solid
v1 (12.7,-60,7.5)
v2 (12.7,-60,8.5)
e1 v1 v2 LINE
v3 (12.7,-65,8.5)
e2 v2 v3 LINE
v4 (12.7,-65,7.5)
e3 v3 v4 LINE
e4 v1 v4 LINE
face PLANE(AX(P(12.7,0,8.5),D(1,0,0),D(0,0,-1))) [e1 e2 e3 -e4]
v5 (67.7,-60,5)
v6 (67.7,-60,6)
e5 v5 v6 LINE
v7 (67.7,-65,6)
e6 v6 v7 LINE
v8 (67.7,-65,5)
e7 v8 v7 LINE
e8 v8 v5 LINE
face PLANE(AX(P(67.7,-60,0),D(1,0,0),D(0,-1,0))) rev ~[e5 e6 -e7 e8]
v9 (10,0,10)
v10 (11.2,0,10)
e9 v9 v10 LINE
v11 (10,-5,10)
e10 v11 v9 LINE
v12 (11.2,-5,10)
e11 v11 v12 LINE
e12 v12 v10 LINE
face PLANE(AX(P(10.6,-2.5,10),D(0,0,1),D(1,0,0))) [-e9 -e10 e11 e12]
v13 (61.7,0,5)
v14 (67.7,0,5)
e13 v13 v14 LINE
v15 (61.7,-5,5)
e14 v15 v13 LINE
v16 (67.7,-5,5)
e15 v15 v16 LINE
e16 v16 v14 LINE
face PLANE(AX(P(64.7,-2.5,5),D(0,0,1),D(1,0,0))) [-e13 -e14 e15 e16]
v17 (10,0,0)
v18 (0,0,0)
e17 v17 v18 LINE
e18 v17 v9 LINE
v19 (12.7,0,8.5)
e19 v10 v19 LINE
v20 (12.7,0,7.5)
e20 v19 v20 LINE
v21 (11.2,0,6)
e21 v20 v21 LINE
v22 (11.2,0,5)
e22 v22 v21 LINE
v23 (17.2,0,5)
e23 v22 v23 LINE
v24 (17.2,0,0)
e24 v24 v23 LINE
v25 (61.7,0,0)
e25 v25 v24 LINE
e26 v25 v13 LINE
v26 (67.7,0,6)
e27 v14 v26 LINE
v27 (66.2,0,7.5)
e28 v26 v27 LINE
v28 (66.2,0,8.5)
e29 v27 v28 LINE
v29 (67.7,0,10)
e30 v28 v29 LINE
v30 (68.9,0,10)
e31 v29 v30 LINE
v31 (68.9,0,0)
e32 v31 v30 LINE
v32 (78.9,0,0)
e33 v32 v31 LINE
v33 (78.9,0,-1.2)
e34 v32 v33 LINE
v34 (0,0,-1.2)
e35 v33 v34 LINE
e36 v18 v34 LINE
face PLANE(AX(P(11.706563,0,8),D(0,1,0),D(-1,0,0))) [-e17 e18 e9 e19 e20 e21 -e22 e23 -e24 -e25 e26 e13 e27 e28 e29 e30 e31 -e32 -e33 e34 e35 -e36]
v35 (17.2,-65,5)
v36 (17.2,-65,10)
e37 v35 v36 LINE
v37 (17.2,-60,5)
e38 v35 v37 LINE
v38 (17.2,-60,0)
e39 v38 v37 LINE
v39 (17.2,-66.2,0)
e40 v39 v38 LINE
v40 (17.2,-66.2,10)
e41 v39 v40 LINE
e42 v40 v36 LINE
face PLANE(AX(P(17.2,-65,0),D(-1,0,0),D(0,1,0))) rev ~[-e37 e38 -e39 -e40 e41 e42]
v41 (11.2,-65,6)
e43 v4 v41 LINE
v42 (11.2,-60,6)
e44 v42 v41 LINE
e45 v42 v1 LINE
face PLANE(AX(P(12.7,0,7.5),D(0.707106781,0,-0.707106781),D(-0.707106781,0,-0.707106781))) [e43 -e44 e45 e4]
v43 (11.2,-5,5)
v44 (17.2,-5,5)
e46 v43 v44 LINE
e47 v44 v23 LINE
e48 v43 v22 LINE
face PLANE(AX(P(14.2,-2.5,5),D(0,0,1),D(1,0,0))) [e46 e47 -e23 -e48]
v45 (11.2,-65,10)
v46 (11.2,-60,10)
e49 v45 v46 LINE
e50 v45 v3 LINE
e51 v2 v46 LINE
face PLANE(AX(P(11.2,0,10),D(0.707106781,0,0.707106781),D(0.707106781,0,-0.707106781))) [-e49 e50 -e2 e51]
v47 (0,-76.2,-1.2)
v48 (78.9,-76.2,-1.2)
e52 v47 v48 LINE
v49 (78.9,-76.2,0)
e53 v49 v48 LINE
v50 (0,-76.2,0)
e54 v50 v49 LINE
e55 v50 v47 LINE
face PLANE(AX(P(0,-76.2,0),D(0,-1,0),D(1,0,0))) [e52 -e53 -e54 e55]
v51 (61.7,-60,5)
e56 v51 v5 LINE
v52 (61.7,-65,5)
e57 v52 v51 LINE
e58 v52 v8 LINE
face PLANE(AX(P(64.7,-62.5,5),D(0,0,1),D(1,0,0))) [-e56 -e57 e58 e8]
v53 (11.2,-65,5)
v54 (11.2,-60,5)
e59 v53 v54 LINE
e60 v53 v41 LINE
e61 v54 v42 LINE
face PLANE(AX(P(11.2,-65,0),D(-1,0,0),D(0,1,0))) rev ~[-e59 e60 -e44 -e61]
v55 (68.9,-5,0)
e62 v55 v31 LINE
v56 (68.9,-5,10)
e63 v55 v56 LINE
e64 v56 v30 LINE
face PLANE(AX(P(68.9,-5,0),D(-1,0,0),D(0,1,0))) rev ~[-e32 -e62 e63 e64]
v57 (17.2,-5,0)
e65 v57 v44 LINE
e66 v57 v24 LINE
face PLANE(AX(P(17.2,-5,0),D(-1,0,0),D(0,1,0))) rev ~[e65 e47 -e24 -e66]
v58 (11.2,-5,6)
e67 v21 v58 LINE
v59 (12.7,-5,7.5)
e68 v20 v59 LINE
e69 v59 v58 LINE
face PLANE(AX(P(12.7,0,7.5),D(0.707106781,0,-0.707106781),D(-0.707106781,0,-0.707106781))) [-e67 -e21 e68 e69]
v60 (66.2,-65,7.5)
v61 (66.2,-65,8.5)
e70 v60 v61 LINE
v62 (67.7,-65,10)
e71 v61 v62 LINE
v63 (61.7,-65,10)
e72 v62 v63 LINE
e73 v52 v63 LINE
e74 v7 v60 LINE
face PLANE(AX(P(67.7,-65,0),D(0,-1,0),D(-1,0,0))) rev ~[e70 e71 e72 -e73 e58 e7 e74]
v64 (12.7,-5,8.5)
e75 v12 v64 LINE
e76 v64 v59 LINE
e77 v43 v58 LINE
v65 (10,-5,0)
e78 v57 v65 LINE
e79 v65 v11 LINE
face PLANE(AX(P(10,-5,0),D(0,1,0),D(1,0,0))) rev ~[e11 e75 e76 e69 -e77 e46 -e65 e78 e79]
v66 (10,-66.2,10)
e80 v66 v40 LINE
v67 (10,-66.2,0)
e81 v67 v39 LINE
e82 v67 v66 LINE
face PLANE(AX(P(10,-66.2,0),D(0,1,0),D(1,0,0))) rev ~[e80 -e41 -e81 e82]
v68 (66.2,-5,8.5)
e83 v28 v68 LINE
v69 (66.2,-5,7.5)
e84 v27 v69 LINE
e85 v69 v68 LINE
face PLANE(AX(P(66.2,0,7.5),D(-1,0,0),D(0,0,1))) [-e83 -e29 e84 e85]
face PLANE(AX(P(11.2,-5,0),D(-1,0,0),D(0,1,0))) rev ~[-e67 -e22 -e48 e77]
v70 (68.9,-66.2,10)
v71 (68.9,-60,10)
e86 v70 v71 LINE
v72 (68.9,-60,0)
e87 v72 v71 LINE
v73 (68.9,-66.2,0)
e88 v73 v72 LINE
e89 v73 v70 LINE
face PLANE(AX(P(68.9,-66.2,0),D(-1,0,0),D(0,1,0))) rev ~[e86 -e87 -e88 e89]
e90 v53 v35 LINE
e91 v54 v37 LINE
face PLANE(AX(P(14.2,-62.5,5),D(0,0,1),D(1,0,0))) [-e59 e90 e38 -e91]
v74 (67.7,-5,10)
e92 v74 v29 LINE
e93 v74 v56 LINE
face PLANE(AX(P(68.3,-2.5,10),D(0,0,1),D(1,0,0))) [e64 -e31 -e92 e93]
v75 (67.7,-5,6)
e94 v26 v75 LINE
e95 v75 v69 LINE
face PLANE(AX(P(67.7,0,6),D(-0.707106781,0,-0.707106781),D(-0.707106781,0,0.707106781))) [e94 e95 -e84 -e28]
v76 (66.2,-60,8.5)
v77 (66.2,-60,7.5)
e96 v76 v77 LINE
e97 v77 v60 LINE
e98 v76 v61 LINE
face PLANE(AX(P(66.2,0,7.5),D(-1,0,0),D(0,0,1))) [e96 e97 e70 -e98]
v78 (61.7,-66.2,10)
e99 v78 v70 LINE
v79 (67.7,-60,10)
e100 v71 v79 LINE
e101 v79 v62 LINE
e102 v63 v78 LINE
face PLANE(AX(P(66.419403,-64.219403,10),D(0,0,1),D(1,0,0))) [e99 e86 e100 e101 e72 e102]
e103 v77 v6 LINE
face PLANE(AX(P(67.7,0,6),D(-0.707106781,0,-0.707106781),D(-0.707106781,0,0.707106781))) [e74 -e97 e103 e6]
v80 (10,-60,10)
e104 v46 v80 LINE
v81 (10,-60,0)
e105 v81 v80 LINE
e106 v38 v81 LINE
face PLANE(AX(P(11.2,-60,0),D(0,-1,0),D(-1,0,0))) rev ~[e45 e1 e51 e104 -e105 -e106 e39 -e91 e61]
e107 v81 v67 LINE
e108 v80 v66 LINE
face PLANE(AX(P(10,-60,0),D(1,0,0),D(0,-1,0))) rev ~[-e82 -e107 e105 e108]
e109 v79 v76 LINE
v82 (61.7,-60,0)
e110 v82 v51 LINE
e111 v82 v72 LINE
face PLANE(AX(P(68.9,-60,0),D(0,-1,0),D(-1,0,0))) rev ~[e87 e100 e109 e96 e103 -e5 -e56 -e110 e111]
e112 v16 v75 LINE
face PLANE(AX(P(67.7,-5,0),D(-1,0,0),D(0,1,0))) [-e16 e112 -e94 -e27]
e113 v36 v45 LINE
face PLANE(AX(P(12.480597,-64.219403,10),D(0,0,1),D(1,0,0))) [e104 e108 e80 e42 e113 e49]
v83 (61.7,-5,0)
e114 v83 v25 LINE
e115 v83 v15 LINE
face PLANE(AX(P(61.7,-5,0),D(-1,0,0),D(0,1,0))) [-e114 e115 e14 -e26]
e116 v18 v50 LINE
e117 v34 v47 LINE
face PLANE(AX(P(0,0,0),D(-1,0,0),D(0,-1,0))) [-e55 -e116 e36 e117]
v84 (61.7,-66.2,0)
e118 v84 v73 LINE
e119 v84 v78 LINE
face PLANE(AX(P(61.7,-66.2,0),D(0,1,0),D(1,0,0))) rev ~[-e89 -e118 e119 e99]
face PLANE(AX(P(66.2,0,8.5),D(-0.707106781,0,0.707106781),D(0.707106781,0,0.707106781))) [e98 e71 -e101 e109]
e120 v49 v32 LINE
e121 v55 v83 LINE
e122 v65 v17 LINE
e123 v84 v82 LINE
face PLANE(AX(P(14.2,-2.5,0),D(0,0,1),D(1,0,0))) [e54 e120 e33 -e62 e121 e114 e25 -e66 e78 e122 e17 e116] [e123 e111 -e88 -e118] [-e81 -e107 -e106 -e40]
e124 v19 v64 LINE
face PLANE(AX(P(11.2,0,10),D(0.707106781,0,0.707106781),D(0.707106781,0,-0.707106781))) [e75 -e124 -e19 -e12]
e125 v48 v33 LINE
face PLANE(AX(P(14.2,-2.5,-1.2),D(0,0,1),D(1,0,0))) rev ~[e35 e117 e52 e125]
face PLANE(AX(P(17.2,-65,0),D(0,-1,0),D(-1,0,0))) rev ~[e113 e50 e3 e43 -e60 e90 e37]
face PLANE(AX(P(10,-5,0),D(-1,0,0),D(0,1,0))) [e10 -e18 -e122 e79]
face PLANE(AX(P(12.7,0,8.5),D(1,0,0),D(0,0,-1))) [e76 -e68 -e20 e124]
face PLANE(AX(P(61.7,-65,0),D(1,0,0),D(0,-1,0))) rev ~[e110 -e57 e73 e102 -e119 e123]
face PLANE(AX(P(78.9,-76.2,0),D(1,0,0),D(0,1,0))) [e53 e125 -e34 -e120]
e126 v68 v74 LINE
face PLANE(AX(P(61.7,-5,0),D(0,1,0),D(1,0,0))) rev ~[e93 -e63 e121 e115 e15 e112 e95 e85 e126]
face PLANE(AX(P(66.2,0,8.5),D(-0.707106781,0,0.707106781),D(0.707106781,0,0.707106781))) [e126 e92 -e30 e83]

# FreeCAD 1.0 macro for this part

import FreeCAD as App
import Part
import Sketcher
from FreeCAD import Vector

doc = App.newDocument("Part")
body = doc.addObject("PartDesign::Body", "Body")

sketch1 = body.newObject("Sketcher::SketchObject", "Sketch")
sketch1.AttachmentSupport = (doc.getObject("XY_Plane"), [""])
sketch1.MapMode = "FlatFace"
sketch1.addGeometry([
    Part.LineSegment(Vector(0, 0, 0), Vector(0, -76, 0)),
    Part.LineSegment(Vector(0, -76, 0), Vector(79, -76, 0)),
    Part.LineSegment(Vector(79, -76, 0), Vector(79, 0, 0)),
    Part.LineSegment(Vector(79, 0, 0), Vector(0, 0, 0)),
], False)
sketch1.addConstraint([
    Sketcher.Constraint("Coincident", 0, 2, 1, 1),
    Sketcher.Constraint("Coincident", 1, 2, 2, 1),
    Sketcher.Constraint("Coincident", 2, 2, 3, 1),
    Sketcher.Constraint("Coincident", 3, 2, 0, 1),
    Sketcher.Constraint("Vertical", 0),
    Sketcher.Constraint("Horizontal", 1),
    Sketcher.Constraint("Vertical", 2),
    Sketcher.Constraint("Horizontal", 3),
    Sketcher.Constraint("Coincident", 3, 2, -1, 1),
    Sketcher.Constraint("DistanceX", 1, 1, 1, 2, 78.9),
    Sketcher.Constraint("DistanceY", 0, 2, 0, 1, 76.2),
])
pad1 = body.newObject("PartDesign::Pad", "Pad")
pad1.Profile = sketch1
pad1.Length = 1.2
pad1.Reversed = True

sketch2 = body.newObject("Sketcher::SketchObject", "Sketch001")
sketch2.AttachmentSupport = (doc.getObject("XY_Plane"), [""])
sketch2.MapMode = "FlatFace"
sketch2.addGeometry([
    Part.LineSegment(Vector(11, 0, 0), Vector(11, -5, 0)),
    Part.LineSegment(Vector(11, -5, 0), Vector(17, -5, 0)),
    Part.LineSegment(Vector(17, -5, 0), Vector(17, 0, 0)),
    Part.LineSegment(Vector(17, 0, 0), Vector(11, 0, 0)),
    Part.LineSegment(Vector(11, -60, 0), Vector(11, -65, 0)),
    Part.LineSegment(Vector(11, -65, 0), Vector(17, -65, 0)),
    Part.LineSegment(Vector(17, -65, 0), Vector(17, -60, 0)),
    Part.LineSegment(Vector(17, -60, 0), Vector(11, -60, 0)),
    Part.LineSegment(Vector(62, 0, 0), Vector(62, -5, 0)),
    Part.LineSegment(Vector(62, -5, 0), Vector(68, -5, 0)),
    Part.LineSegment(Vector(68, -5, 0), Vector(68, 0, 0)),
    Part.LineSegment(Vector(68, 0, 0), Vector(62, 0, 0)),
    Part.LineSegment(Vector(62, -60, 0), Vector(62, -65, 0)),
    Part.LineSegment(Vector(62, -65, 0), Vector(68, -65, 0)),
    Part.LineSegment(Vector(68, -65, 0), Vector(68, -60, 0)),
    Part.LineSegment(Vector(68, -60, 0), Vector(62, -60, 0)),
], False)
sketch2.addConstraint([
    Sketcher.Constraint("Coincident", 0, 2, 1, 1),
    Sketcher.Constraint("Coincident", 1, 2, 2, 1),
    Sketcher.Constraint("Coincident", 2, 2, 3, 1),
    Sketcher.Constraint("Coincident", 3, 2, 0, 1),
    Sketcher.Constraint("Coincident", 4, 2, 5, 1),
    Sketcher.Constraint("Coincident", 5, 2, 6, 1),
    Sketcher.Constraint("Coincident", 6, 2, 7, 1),
    Sketcher.Constraint("Coincident", 7, 2, 4, 1),
    Sketcher.Constraint("Coincident", 8, 2, 9, 1),
    Sketcher.Constraint("Coincident", 9, 2, 10, 1),
    Sketcher.Constraint("Coincident", 10, 2, 11, 1),
    Sketcher.Constraint("Coincident", 11, 2, 8, 1),
    Sketcher.Constraint("Coincident", 12, 2, 13, 1),
    Sketcher.Constraint("Coincident", 13, 2, 14, 1),
    Sketcher.Constraint("Coincident", 14, 2, 15, 1),
    Sketcher.Constraint("Coincident", 15, 2, 12, 1),
    Sketcher.Constraint("Vertical", 0),
    Sketcher.Constraint("Horizontal", 1),
    Sketcher.Constraint("Vertical", 2),
    Sketcher.Constraint("Horizontal", 3),
    Sketcher.Constraint("Vertical", 4),
    Sketcher.Constraint("Horizontal", 5),
    Sketcher.Constraint("Vertical", 6),
    Sketcher.Constraint("Horizontal", 7),
    Sketcher.Constraint("Vertical", 8),
    Sketcher.Constraint("Horizontal", 9),
    Sketcher.Constraint("Vertical", 10),
    Sketcher.Constraint("Horizontal", 11),
    Sketcher.Constraint("Vertical", 12),
    Sketcher.Constraint("Horizontal", 13),
    Sketcher.Constraint("Vertical", 14),
    Sketcher.Constraint("Horizontal", 15),
    Sketcher.Constraint("PointOnObject", 2, 2, -1),
    Sketcher.Constraint("PointOnObject", 10, 2, -1),
    Sketcher.Constraint("Horizontal", 1, 2, 8, 2),
    Sketcher.Constraint("Horizontal", 5, 2, 12, 2),
    Sketcher.Constraint("Horizontal", 7, 2, 14, 2),
    Sketcher.Constraint("Vertical", 3, 2, 4, 2),
    Sketcher.Constraint("Vertical", 2, 2, 5, 2),
    Sketcher.Constraint("Vertical", 11, 2, 12, 2),
    Sketcher.Constraint("Vertical", 10, 2, 13, 2),
    Sketcher.Constraint("Equal", 7, 9),
    Sketcher.Constraint("Equal", 2, 4),
    Sketcher.Constraint("DistanceX", 1, 1, 1, 2, 6.0),
    Sketcher.Constraint("DistanceY", 0, 2, 0, 1, 5.0),
    Sketcher.Constraint("DistanceY", 4, 2, -1, 1, 65.0),
    Sketcher.Constraint("DistanceX", -1, 1, 0, 2, 11.2),
    Sketcher.Constraint("DistanceX", -1, 1, 8, 2, 61.7),
])
pad2 = body.newObject("PartDesign::Pad", "Pad001")
pad2.Profile = sketch2
pad2.Length = 5

sketch3 = body.newObject("Sketcher::SketchObject", "Sketch002")
sketch3.AttachmentSupport = (doc.getObject("XY_Plane"), [""])
sketch3.MapMode = "FlatFace"
sketch3.addGeometry([
    Part.LineSegment(Vector(11.2, -65, 0), Vector(11.2, -60, 0)),
    Part.LineSegment(Vector(11.2, -60, 0), Vector(10, -60, 0)),
    Part.LineSegment(Vector(10, -60, 0), Vector(10, -66.2, 0)),
    Part.LineSegment(Vector(10, -66.2, 0), Vector(17.2, -66.2, 0)),
    Part.LineSegment(Vector(17.2, -66.2, 0), Vector(17.2, -65, 0)),
    Part.LineSegment(Vector(17.2, -65, 0), Vector(11.2, -65, 0)),
    Part.LineSegment(Vector(68.9, -60, 0), Vector(67.7, -60, 0)),
    Part.LineSegment(Vector(67.7, -60, 0), Vector(67.7, -65, 0)),
    Part.LineSegment(Vector(67.7, -65, 0), Vector(61.7, -65, 0)),
    Part.LineSegment(Vector(61.7, -65, 0), Vector(61.7, -66.2, 0)),
    Part.LineSegment(Vector(61.7, -66.2, 0), Vector(68.9, -66.2, 0)),
    Part.LineSegment(Vector(68.9, -66.2, 0), Vector(68.9, -60, 0)),
    Part.LineSegment(Vector(67.7, 0, 0), Vector(67.7, -5, 0)),
    Part.LineSegment(Vector(67.7, -5, 0), Vector(68.9, -5, 0)),
    Part.LineSegment(Vector(68.9, -5, 0), Vector(68.9, 0, 0)),
    Part.LineSegment(Vector(68.9, 0, 0), Vector(67.7, 0, 0)),
    Part.LineSegment(Vector(10, 0, 0), Vector(10, -5, 0)),
    Part.LineSegment(Vector(10, -5, 0), Vector(11.2, -5, 0)),
    Part.LineSegment(Vector(11.2, -5, 0), Vector(11.2, 0, 0)),
    Part.LineSegment(Vector(11.2, 0, 0), Vector(10, 0, 0)),
], False)
sketch3.addConstraint([
    Sketcher.Constraint("Coincident", 0, 2, 1, 1),
    Sketcher.Constraint("Coincident", 1, 2, 2, 1),
    Sketcher.Constraint("Coincident", 2, 2, 3, 1),
    Sketcher.Constraint("Coincident", 3, 2, 4, 1),
    Sketcher.Constraint("Coincident", 4, 2, 5, 1),
    Sketcher.Constraint("Coincident", 5, 2, 0, 1),
    Sketcher.Constraint("Coincident", 6, 2, 7, 1),
    Sketcher.Constraint("Coincident", 7, 2, 8, 1),
    Sketcher.Constraint("Coincident", 8, 2, 9, 1),
    Sketcher.Constraint("Coincident", 9, 2, 10, 1),
    Sketcher.Constraint("Coincident", 10, 2, 11, 1),
    Sketcher.Constraint("Coincident", 11, 2, 6, 1),
    Sketcher.Constraint("Coincident", 12, 2, 13, 1),
    Sketcher.Constraint("Coincident", 13, 2, 14, 1),
    Sketcher.Constraint("Coincident", 14, 2, 15, 1),
    Sketcher.Constraint("Coincident", 15, 2, 12, 1),
    Sketcher.Constraint("Coincident", 16, 2, 17, 1),
    Sketcher.Constraint("Coincident", 17, 2, 18, 1),
    Sketcher.Constraint("Coincident", 18, 2, 19, 1),
    Sketcher.Constraint("Coincident", 19, 2, 16, 1),
    Sketcher.Constraint("Vertical", 0),
    Sketcher.Constraint("Horizontal", 1),
    Sketcher.Constraint("Vertical", 2),
    Sketcher.Constraint("Horizontal", 3),
    Sketcher.Constraint("Vertical", 4),
    Sketcher.Constraint("Horizontal", 5),
    Sketcher.Constraint("Horizontal", 6),
    Sketcher.Constraint("Vertical", 7),
    Sketcher.Constraint("Horizontal", 8),
    Sketcher.Constraint("Vertical", 9),
    Sketcher.Constraint("Horizontal", 10),
    Sketcher.Constraint("Vertical", 11),
    Sketcher.Constraint("Vertical", 12),
    Sketcher.Constraint("Horizontal", 13),
    Sketcher.Constraint("Vertical", 14),
    Sketcher.Constraint("Horizontal", 15),
    Sketcher.Constraint("Vertical", 16),
    Sketcher.Constraint("Horizontal", 17),
    Sketcher.Constraint("Vertical", 18),
    Sketcher.Constraint("Horizontal", 19),
    Sketcher.Constraint("PointOnObject", 14, 2, -1),
    Sketcher.Constraint("PointOnObject", 18, 2, -1),
    Sketcher.Constraint("Horizontal", 1, 2, 6, 2),
    Sketcher.Constraint("Horizontal", 5, 2, 7, 2),
    Sketcher.Constraint("Horizontal", 3, 2, 9, 2),
    Sketcher.Constraint("Horizontal", 13, 2, 16, 2),
    Sketcher.Constraint("Vertical", 7, 2, 12, 2),
    Sketcher.Constraint("Vertical", 11, 2, 13, 2),
    Sketcher.Constraint("Vertical", 2, 2, 16, 2),
    Sketcher.Constraint("Vertical", 5, 2, 17, 2),
    Sketcher.Constraint("Equal", 1, 6),
    Sketcher.Constraint("Equal", 5, 8),
    Sketcher.Constraint("Equal", 19, 4),
    Sketcher.Constraint("Equal", 7, 12),
    Sketcher.Constraint("DistanceX", 5, 2, 5, 1, 6.0),
    Sketcher.Constraint("DistanceY", 0, 1, 0, 2, 5.0),
    Sketcher.Constraint("DistanceX", 1, 2, 1, 1, 1.2),
    Sketcher.Constraint("DistanceY", 0, 2, -1, 1, 60.0),
    Sketcher.Constraint("DistanceX", -1, 1, 1, 2, 10.0),
    Sketcher.Constraint("DistanceX", -1, 1, 6, 2, 67.7),
])
pad3 = body.newObject("PartDesign::Pad", "Pad002")
pad3.Profile = sketch3
pad3.Length = 10

sketch4 = body.newObject("Sketcher::SketchObject", "Sketch003")
sketch4.AttachmentSupport = (doc.getObject("XZ_Plane"), [""])
sketch4.MapMode = "FlatFace"
sketch4.addGeometry([
    Part.LineSegment(Vector(11.2, 6, 0), Vector(11.2, 10, 0)),
    Part.LineSegment(Vector(11.2, 10, 0), Vector(12.7, 8.5, 0)),
    Part.LineSegment(Vector(12.7, 8.5, 0), Vector(12.7, 7.5, 0)),
    Part.LineSegment(Vector(12.7, 7.5, 0), Vector(11.2, 6, 0)),
    Part.LineSegment(Vector(66.2, 7.5, 0), Vector(66.2, 8.5, 0)),
    Part.LineSegment(Vector(66.2, 8.5, 0), Vector(67.7, 10, 0)),
    Part.LineSegment(Vector(67.7, 10, 0), Vector(67.7, 6, 0)),
    Part.LineSegment(Vector(67.7, 6, 0), Vector(66.2, 7.5, 0)),
], False)
sketch4.addConstraint([
    Sketcher.Constraint("Coincident", 0, 2, 1, 1),
    Sketcher.Constraint("Coincident", 1, 2, 2, 1),
    Sketcher.Constraint("Coincident", 2, 2, 3, 1),
    Sketcher.Constraint("Coincident", 3, 2, 0, 1),
    Sketcher.Constraint("Coincident", 4, 2, 5, 1),
    Sketcher.Constraint("Coincident", 5, 2, 6, 1),
    Sketcher.Constraint("Coincident", 6, 2, 7, 1),
    Sketcher.Constraint("Coincident", 7, 2, 4, 1),
    Sketcher.Constraint("Vertical", 0),
    Sketcher.Constraint("Vertical", 2),
    Sketcher.Constraint("Vertical", 4),
    Sketcher.Constraint("Vertical", 6),
    Sketcher.Constraint("Perpendicular", 1, 3),
    Sketcher.Constraint("Parallel", 3, 5),
    Sketcher.Constraint("Perpendicular", 5, 7),
    Sketcher.Constraint("Horizontal", 1, 2, 4, 2),
    Sketcher.Constraint("Horizontal", 0, 2, 5, 2),
    Sketcher.Constraint("Horizontal", 3, 2, 6, 2),
    Sketcher.Constraint("Horizontal", 2, 2, 7, 2),
    Sketcher.Constraint("DistanceY", 0, 1, 0, 2, 4.0),
    Sketcher.Constraint("DistanceY", 2, 2, 2, 1, 1.0),
    Sketcher.Constraint("DistanceY", -1, 1, 0, 2, 10.0),
    Sketcher.Constraint("DistanceX", 0, 2, 4, 2, 55.0),
    Sketcher.Constraint("DistanceX", -1, 1, 0, 2, 11.2),
])
pad4 = body.newObject("PartDesign::Pad", "Pad003")
pad4.Profile = sketch4
pad4.Length = 65

sketch5 = body.newObject("Sketcher::SketchObject", "Sketch004")
sketch5.AttachmentSupport = (doc.getObject("XY_Plane"), [""])
sketch5.MapMode = "FlatFace"
sketch5.addGeometry([
    Part.LineSegment(Vector(10, 0, 0), Vector(0, 0, 0)),
    Part.LineSegment(Vector(0, 0, 0), Vector(0, -76, 0)),
    Part.LineSegment(Vector(0, -76, 0), Vector(79, -76, 0)),
    Part.LineSegment(Vector(79, -76, 0), Vector(79, 0, 0)),
    Part.LineSegment(Vector(79, 0, 0), Vector(69, 0, 0)),
    Part.LineSegment(Vector(69, 0, 0), Vector(69, -5, 0)),
    Part.LineSegment(Vector(69, -5, 0), Vector(62, -5, 0)),
    Part.LineSegment(Vector(62, -5, 0), Vector(62, 0, 0)),
    Part.LineSegment(Vector(62, 0, 0), Vector(17, 0, 0)),
    Part.LineSegment(Vector(17, 0, 0), Vector(17, -5, 0)),
    Part.LineSegment(Vector(17, -5, 0), Vector(10, -5, 0)),
    Part.LineSegment(Vector(10, -5, 0), Vector(10, 0, 0)),
    Part.LineSegment(Vector(10, -66, 0), Vector(10, -60, 0)),
    Part.LineSegment(Vector(10, -60, 0), Vector(17, -60, 0)),
    Part.LineSegment(Vector(17, -60, 0), Vector(17, -66, 0)),
    Part.LineSegment(Vector(17, -66, 0), Vector(10, -66, 0)),
    Part.LineSegment(Vector(62, -66, 0), Vector(62, -60, 0)),
    Part.LineSegment(Vector(62, -60, 0), Vector(69, -60, 0)),
    Part.LineSegment(Vector(69, -60, 0), Vector(69, -66, 0)),
    Part.LineSegment(Vector(69, -66, 0), Vector(62, -66, 0)),
], False)
sketch5.addConstraint([
    Sketcher.Constraint("Coincident", 0, 2, 1, 1),
    Sketcher.Constraint("Coincident", 1, 2, 2, 1),
    Sketcher.Constraint("Coincident", 2, 2, 3, 1),
    Sketcher.Constraint("Coincident", 3, 2, 4, 1),
    Sketcher.Constraint("Coincident", 4, 2, 5, 1),
    Sketcher.Constraint("Coincident", 5, 2, 6, 1),
    Sketcher.Constraint("Coincident", 6, 2, 7, 1),
    Sketcher.Constraint("Coincident", 7, 2, 8, 1),
    Sketcher.Constraint("Coincident", 8, 2, 9, 1),
    Sketcher.Constraint("Coincident", 9, 2, 10, 1),
    Sketcher.Constraint("Coincident", 10, 2, 11, 1),
    Sketcher.Constraint("Coincident", 11, 2, 0, 1),
    Sketcher.Constraint("Coincident", 12, 2, 13, 1),
    Sketcher.Constraint("Coincident", 13, 2, 14, 1),
    Sketcher.Constraint("Coincident", 14, 2, 15, 1),
    Sketcher.Constraint("Coincident", 15, 2, 12, 1),
    Sketcher.Constraint("Coincident", 16, 2, 17, 1),
    Sketcher.Constraint("Coincident", 17, 2, 18, 1),
    Sketcher.Constraint("Coincident", 18, 2, 19, 1),
    Sketcher.Constraint("Coincident", 19, 2, 16, 1),
    Sketcher.Constraint("Horizontal", 0),
    Sketcher.Constraint("Vertical", 1),
    Sketcher.Constraint("Horizontal", 2),
    Sketcher.Constraint("Vertical", 3),
    Sketcher.Constraint("Horizontal", 4),
    Sketcher.Constraint("Vertical", 5),
    Sketcher.Constraint("Horizontal", 6),
    Sketcher.Constraint("Vertical", 7),
    Sketcher.Constraint("Horizontal", 8),
    Sketcher.Constraint("Vertical", 9),
    Sketcher.Constraint("Horizontal", 10),
    Sketcher.Constraint("Vertical", 11),
    Sketcher.Constraint("Vertical", 12),
    Sketcher.Constraint("Horizontal", 13),
    Sketcher.Constraint("Vertical", 14),
    Sketcher.Constraint("Horizontal", 15),
    Sketcher.Constraint("Vertical", 16),
    Sketcher.Constraint("Horizontal", 17),
    Sketcher.Constraint("Vertical", 18),
    Sketcher.Constraint("Horizontal", 19),
    Sketcher.Constraint("Coincident", 0, 2, -1, 1),
    Sketcher.Constraint("PointOnObject", 3, 2, -1),
    Sketcher.Constraint("PointOnObject", 7, 2, -1),
    Sketcher.Constraint("Horizontal", 6, 2, 9, 2),
    Sketcher.Constraint("Horizontal", 13, 2, 16, 2),
    Sketcher.Constraint("Horizontal", 15, 2, 18, 2),
    Sketcher.Constraint("Vertical", 11, 2, 12, 2),
    Sketcher.Constraint("Vertical", 9, 2, 13, 2),
    Sketcher.Constraint("Vertical", 7, 2, 16, 2),
    Sketcher.Constraint("Vertical", 5, 2, 17, 2),
    Sketcher.Constraint("Equal", 0, 4),
    Sketcher.Constraint("Equal", 6, 10),
    Sketcher.Constraint("DistanceX", 0, 2, 0, 1, 10.0),
    Sketcher.Constraint("DistanceY", 5, 2, 5, 1, 5.0),
    Sketcher.Constraint("DistanceX", 2, 1, 2, 2, 78.9),
    Sketcher.Constraint("DistanceX", 6, 2, 6, 1, 7.2),
    Sketcher.Constraint("DistanceY", 1, 2, 1, 1, 76.2),
    Sketcher.Constraint("DistanceY", 12, 1, 12, 2, 6.2),
    Sketcher.Constraint("DistanceY", 12, 2, -1, 1, 60.0),
])
pocket1 = body.newObject("PartDesign::Pocket", "Pocket")
pocket1.Profile = sketch5
pocket1.Type = "ThroughAll"
pocket1.Reversed = True

doc.recompute()
